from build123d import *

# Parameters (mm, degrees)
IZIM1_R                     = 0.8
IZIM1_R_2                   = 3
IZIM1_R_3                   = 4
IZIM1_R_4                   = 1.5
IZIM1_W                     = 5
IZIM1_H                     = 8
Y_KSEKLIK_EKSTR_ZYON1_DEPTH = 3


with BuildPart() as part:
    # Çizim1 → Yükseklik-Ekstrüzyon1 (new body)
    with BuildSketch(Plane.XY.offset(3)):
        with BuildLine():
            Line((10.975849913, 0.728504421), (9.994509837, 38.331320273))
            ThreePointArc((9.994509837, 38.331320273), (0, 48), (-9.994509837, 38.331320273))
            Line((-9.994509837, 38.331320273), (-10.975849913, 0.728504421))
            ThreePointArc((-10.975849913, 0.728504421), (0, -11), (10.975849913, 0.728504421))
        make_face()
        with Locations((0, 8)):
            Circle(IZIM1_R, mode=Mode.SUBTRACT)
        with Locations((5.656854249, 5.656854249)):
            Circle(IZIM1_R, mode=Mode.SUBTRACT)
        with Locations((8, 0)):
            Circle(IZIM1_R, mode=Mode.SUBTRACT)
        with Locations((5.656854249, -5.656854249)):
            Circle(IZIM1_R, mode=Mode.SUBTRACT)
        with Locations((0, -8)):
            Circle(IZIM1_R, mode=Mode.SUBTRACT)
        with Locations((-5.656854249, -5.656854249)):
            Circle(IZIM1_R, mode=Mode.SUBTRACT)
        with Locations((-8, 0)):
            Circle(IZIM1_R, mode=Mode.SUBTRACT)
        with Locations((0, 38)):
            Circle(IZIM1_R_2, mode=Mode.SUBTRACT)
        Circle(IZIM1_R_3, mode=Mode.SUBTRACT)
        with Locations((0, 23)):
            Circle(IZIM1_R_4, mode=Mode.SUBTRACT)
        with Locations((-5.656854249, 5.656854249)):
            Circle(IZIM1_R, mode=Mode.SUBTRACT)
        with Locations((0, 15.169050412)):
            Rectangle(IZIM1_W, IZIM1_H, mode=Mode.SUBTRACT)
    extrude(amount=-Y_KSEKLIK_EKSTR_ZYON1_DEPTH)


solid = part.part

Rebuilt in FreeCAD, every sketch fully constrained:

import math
import FreeCAD as App
import Part
import Sketcher

V = App.Vector

doc = App.newDocument("Part")
body = doc.addObject("PartDesign::Body", "Body")

# Sketch on XY plane
sketch1 = doc.addObject("Sketcher::SketchObject", "Sketch")
body.addObject(sketch1)
sketch1.AttachmentSupport = (doc.XY_Plane, [""])
sketch1.MapMode = "FlatFace"
sketch1.AttachmentOffset = App.Placement(V(0, 0, 3), App.Rotation())
sketch1.addGeometry(Part.LineSegment(V(10.97585, 0.728504, 0), V(9.99451, 38.33132, 0)), False)
sketch1.addGeometry(Part.ArcOfCircle(Part.Circle(V(0, 38, 0), V(0, 0, 1), 10), math.radians(1.898673), math.radians(178.101327)), False)
sketch1.addGeometry(Part.LineSegment(V(-9.99451, 38.33132, 0), V(-10.97585, 0.728504, 0)), False)
sketch1.addGeometry(Part.ArcOfCircle(Part.Circle(V(0, 0, 0), V(0, 0, 1), 11), math.radians(176.202654), math.radians(363.797346)), False)
sketch1.addGeometry(Part.Circle(V(-5.656854, -5.656854, 0), V(0, 0, 1), 0.8), False)
sketch1.addGeometry(Part.Circle(V(-8, 0, 0), V(0, 0, 1), 0.8), False)
sketch1.addGeometry(Part.Circle(V(-5.656854, 5.656854, 0), V(0, 0, 1), 0.8), False)
sketch1.addGeometry(Part.Circle(V(0, -8, 0), V(0, 0, 1), 0.8), False)
sketch1.addGeometry(Part.Circle(V(0, 0, 0), V(0, 0, 1), 4), False)
sketch1.addGeometry(Part.Circle(V(5.656854, -5.656854, 0), V(0, 0, 1), 0.8), False)
sketch1.addGeometry(Part.Circle(V(8, 0, 0), V(0, 0, 1), 0.8), False)
sketch1.addGeometry(Part.Circle(V(0, 8, 0), V(0, 0, 1), 0.8), False)
sketch1.addGeometry(Part.LineSegment(V(2.5, 11.16905, 0), V(-2.5, 11.16905, 0)), False)
sketch1.addGeometry(Part.LineSegment(V(-2.5, 11.16905, 0), V(-2.5, 19.16905, 0)), False)
sketch1.addGeometry(Part.LineSegment(V(-2.5, 19.16905, 0), V(2.5, 19.16905, 0)), False)
sketch1.addGeometry(Part.LineSegment(V(2.5, 19.16905, 0), V(2.5, 11.16905, 0)), False)
sketch1.addGeometry(Part.Circle(V(5.656854, 5.656854, 0), V(0, 0, 1), 0.8), False)
sketch1.addGeometry(Part.Circle(V(0, 23, 0), V(0, 0, 1), 1.5), False)
sketch1.addGeometry(Part.Circle(V(0, 38, 0), V(0, 0, 1), 3), False)
sketch1.addConstraint(Sketcher.Constraint("Coincident", 0, 2, 1, 1))
sketch1.addConstraint(Sketcher.Constraint("Coincident", 1, 2, 2, 1))
sketch1.addConstraint(Sketcher.Constraint("Coincident", 2, 2, 3, 1))
sketch1.addConstraint(Sketcher.Constraint("Coincident", 3, 2, 0, 1))
sketch1.addConstraint(Sketcher.Constraint("Coincident", 12, 2, 13, 1))
sketch1.addConstraint(Sketcher.Constraint("Coincident", 13, 2, 14, 1))
sketch1.addConstraint(Sketcher.Constraint("Coincident", 14, 2, 15, 1))
sketch1.addConstraint(Sketcher.Constraint("Coincident", 15, 2, 12, 1))
sketch1.addConstraint(Sketcher.Constraint("Horizontal", 12))
sketch1.addConstraint(Sketcher.Constraint("Vertical", 13))
sketch1.addConstraint(Sketcher.Constraint("Horizontal", 14))
sketch1.addConstraint(Sketcher.Constraint("Vertical", 15))
sketch1.addConstraint(Sketcher.Constraint("Coincident", 3, 3, -1, 1))
sketch1.addConstraint(Sketcher.Constraint("Coincident", 8, 3, -1, 1))
sketch1.addConstraint(Sketcher.Constraint("Coincident", 18, 3, 1, 3))
sketch1.addConstraint(Sketcher.Constraint("Equal", 4, 5))
sketch1.addConstraint(Sketcher.Constraint("Equal", 5, 6))
sketch1.addConstraint(Sketcher.Constraint("Equal", 6, 7))
sketch1.addConstraint(Sketcher.Constraint("Equal", 7, 9))
sketch1.addConstraint(Sketcher.Constraint("Equal", 9, 10))
sketch1.addConstraint(Sketcher.Constraint("Equal", 10, 11))
sketch1.addConstraint(Sketcher.Constraint("Equal", 11, 16))
sketch1.addConstraint(Sketcher.Constraint("Symmetric", 6, 3, 9, 3, -1, 1))
sketch1.addConstraint(Sketcher.Constraint("Symmetric", 5, 3, 10, 3, -1, 1))
sketch1.addConstraint(Sketcher.Constraint("Symmetric", 7, 3, 11, 3, -1, 1))
sketch1.addConstraint(Sketcher.Constraint("Symmetric", 4, 3, 16, 3, -1, 1))
sketch1.addConstraint(Sketcher.Constraint("Symmetric", 4, 3, 9, 3, -2))
sketch1.addConstraint(Sketcher.Constraint("Symmetric", 0, 2, 1, 2, -2))
sketch1.addConstraint(Sketcher.Constraint("PointOnObject", 5, 3, -1))
sketch1.addConstraint(Sketcher.Constraint("PointOnObject", 7, 3, -2))
sketch1.addConstraint(Sketcher.Constraint("PointOnObject", 17, 3, -2))
sketch1.addConstraint(Sketcher.Constraint("Horizontal", 2, 2, 3, 2))
sketch1.addConstraint(Sketcher.Constraint("Diameter", 8, 8.0))
sketch1.addConstraint(Sketcher.Constraint("Diameter", 17, 3.0))
sketch1.addConstraint(Sketcher.Constraint("Diameter", 18, 6.0))
sketch1.addConstraint(Sketcher.Constraint("Radius", 1, 10.0))
sketch1.addConstraint(Sketcher.Constraint("Radius", 3, 11.0))
sketch1.addConstraint(Sketcher.Constraint("Diameter", 4, 1.6))
sketch1.addConstraint(Sketcher.Constraint("DistanceX", 12, 2, 12, 1, 5.0))
sketch1.addConstraint(Sketcher.Constraint("DistanceY", 13, 1, 13, 2, 8.0))
sketch1.addConstraint(Sketcher.Constraint("DistanceY", -1, 1, 1, 3, 38.0))
sketch1.addConstraint(Sketcher.Constraint("DistanceX", 5, 3, -1, 1, 8.0))
sketch1.addConstraint(Sketcher.Constraint("DistanceY", 7, 3, -1, 1, 8.0))
sketch1.addConstraint(Sketcher.Constraint("DistanceY", -1, 1, 17, 3, 23.0))
sketch1.addConstraint(Sketcher.Constraint("DistanceX", 12, 2, -1, 1, 2.5))
sketch1.addConstraint(Sketcher.Constraint("Distance", 0, 37.615619))
sketch1.addConstraint(Sketcher.Constraint("DistanceX", -1, 1, 0, 2, 9.99451))
sketch1.addConstraint(Sketcher.Constraint("DistanceY", -1, 1, 12, 2, 11.16905))
sketch1.addConstraint(Sketcher.Constraint("DistanceY", 4, 3, 6, 3, 11.313708))
sketch1.addConstraint(Sketcher.Constraint("DistanceX", 4, 3, 9, 3, 11.313708))
pad1 = doc.addObject("PartDesign::Pad", "Pad")
body.addObject(pad1)
pad1.Profile = sketch1
pad1.Length = 3
pad1.Reversed = True

doc.recompute()
